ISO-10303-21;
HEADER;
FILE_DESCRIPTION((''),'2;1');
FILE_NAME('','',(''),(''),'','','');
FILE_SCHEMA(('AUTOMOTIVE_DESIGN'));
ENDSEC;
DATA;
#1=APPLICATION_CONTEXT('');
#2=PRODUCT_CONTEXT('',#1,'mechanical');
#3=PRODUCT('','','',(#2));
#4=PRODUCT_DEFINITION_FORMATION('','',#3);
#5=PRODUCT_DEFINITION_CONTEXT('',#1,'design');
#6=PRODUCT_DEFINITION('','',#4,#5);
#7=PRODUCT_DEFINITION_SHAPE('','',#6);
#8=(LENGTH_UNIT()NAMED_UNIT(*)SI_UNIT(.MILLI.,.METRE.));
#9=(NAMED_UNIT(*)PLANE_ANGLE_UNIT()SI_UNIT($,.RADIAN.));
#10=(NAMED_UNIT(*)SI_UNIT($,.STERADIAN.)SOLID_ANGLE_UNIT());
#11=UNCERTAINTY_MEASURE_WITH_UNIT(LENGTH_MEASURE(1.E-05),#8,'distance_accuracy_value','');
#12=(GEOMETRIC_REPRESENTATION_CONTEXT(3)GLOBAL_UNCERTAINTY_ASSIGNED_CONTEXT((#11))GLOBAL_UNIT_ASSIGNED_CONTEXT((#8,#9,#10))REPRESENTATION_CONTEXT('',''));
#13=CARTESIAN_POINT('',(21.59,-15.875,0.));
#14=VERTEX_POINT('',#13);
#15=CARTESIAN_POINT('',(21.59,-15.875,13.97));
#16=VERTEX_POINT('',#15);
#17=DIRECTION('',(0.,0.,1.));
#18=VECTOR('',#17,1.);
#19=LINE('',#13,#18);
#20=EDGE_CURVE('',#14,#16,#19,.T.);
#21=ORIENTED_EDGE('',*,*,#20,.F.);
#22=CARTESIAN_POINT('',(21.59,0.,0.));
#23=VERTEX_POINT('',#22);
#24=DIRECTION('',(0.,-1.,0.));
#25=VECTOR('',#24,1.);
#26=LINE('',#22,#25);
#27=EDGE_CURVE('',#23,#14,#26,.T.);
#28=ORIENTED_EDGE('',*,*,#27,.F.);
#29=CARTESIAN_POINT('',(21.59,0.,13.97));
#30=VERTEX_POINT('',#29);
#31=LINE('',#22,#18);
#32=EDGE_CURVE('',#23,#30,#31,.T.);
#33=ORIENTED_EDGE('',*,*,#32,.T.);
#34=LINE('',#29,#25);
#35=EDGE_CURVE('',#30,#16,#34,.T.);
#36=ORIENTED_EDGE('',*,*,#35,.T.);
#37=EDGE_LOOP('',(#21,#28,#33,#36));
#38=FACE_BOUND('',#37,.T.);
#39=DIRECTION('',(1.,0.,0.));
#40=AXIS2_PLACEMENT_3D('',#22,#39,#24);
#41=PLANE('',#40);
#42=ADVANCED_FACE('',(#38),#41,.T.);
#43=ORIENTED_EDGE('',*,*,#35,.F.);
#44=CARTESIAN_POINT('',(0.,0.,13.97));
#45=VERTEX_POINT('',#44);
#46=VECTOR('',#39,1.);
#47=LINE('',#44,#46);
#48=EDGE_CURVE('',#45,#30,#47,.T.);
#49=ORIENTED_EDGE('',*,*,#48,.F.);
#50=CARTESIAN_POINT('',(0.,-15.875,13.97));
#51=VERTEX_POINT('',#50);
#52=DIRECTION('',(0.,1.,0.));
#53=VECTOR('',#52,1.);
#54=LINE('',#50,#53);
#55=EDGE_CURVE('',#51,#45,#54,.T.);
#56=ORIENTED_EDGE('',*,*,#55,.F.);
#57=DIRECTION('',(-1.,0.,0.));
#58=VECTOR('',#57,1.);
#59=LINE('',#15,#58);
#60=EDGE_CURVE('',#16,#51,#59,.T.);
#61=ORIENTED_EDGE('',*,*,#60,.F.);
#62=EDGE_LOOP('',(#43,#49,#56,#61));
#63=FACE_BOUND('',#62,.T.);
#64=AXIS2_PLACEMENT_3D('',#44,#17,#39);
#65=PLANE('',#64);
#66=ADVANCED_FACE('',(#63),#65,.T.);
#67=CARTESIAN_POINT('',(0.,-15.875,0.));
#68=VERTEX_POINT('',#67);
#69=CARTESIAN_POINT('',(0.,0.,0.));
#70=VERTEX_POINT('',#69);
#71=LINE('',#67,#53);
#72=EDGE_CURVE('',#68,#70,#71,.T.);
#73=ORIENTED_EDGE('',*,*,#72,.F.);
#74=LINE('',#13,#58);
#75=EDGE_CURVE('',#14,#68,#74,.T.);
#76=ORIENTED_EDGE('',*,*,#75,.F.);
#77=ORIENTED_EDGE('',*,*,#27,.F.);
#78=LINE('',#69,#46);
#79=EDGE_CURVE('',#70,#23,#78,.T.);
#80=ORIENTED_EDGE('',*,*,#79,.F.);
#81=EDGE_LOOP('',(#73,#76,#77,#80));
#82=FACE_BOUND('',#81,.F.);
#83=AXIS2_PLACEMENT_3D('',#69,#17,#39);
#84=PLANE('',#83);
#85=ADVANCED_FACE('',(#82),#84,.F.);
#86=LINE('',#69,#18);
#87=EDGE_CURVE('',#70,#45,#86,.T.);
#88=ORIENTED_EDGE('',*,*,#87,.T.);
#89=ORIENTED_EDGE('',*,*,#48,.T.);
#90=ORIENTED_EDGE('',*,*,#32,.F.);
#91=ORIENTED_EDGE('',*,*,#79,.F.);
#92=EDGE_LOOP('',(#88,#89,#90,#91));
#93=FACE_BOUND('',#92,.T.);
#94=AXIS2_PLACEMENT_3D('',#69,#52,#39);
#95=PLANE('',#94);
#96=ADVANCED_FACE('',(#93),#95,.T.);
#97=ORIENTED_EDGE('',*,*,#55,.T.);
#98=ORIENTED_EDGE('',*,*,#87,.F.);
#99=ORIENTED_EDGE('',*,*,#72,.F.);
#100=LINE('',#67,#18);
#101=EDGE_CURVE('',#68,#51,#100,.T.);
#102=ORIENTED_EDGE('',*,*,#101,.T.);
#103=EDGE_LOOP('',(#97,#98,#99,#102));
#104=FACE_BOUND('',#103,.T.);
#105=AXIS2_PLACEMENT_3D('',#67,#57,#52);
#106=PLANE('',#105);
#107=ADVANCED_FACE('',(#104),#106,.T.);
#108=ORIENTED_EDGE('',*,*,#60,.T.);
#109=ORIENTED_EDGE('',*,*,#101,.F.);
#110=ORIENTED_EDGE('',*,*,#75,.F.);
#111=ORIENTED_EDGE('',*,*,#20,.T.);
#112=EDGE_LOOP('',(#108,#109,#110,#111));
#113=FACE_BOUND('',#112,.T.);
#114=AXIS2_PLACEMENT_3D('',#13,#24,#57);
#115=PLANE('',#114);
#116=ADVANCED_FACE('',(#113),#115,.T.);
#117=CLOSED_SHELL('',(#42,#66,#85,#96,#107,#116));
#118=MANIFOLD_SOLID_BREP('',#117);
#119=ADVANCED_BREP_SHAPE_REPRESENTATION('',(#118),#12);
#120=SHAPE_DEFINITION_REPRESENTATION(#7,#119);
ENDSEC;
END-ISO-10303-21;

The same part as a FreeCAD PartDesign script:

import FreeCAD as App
import Part
import Sketcher
Q = App.Units.Quantity


def add_polygon(sketch, points):
    """Adds a closed chain of lines whose ends are joined by coincident constraints."""
    first, n = sketch.GeometryCount, len(points)
    for a, b in zip(points, points[1:] + points[:1]):
        sketch.addGeometry(Part.LineSegment(App.Vector(*a, 0), App.Vector(*b, 0)), False)
    for i in range(n):
        sketch.addConstraint(Sketcher.Constraint("Coincident", first + i, 2, first + (i + 1) % n, 1))

doc = App.newDocument("Part")
params = doc.addObject("Spreadsheet::Sheet", "Params")
for row, (alias, value) in enumerate([
    ("sketch1_width", "0.85 in"),
    ("sketch1_height", "0.625 in"),
    ("pad1_length", "0.55 in"),
], start=1):
    params.set(f"A{row}", alias)
    params.set(f"B{row}", "=" + value)
    params.setAlias(f"B{row}", alias)

body = doc.addObject("PartDesign::Body", "Body")

# Sketch on XY plane
sketch1 = body.newObject("Sketcher::SketchObject", "Sketch")
sketch1.AttachmentSupport = (doc.getObject("XY_Plane"), [""])
sketch1.MapMode = "FlatFace"
add_polygon(sketch1, [(22, 0), (0, 0), (0, -16), (22, -16)])  # lines 0-3
sketch1.addConstraint(Sketcher.Constraint("Horizontal", 0))
sketch1.addConstraint(Sketcher.Constraint("Vertical", 1))
sketch1.addConstraint(Sketcher.Constraint("Horizontal", 2))
sketch1.addConstraint(Sketcher.Constraint("Vertical", 3))
sketch1.addConstraint(Sketcher.Constraint("Coincident", 0, 2, -1, 1))
sketch1.addConstraint(Sketcher.Constraint("DistanceX", 0, 2, 0, 1, Q("0.85 in")))
sketch1.addConstraint(Sketcher.Constraint("DistanceY", 1, 2, 1, 1, Q("0.625 in")))
sketch1.setExpression("Constraints[9]", "Params.sketch1_width")
sketch1.setExpression("Constraints[10]", "Params.sketch1_height")
pad1 = body.newObject("PartDesign::Pad", "Pad")
pad1.Profile = sketch1
pad1.setExpression("Length", "Params.pad1_length")

doc.recompute()
